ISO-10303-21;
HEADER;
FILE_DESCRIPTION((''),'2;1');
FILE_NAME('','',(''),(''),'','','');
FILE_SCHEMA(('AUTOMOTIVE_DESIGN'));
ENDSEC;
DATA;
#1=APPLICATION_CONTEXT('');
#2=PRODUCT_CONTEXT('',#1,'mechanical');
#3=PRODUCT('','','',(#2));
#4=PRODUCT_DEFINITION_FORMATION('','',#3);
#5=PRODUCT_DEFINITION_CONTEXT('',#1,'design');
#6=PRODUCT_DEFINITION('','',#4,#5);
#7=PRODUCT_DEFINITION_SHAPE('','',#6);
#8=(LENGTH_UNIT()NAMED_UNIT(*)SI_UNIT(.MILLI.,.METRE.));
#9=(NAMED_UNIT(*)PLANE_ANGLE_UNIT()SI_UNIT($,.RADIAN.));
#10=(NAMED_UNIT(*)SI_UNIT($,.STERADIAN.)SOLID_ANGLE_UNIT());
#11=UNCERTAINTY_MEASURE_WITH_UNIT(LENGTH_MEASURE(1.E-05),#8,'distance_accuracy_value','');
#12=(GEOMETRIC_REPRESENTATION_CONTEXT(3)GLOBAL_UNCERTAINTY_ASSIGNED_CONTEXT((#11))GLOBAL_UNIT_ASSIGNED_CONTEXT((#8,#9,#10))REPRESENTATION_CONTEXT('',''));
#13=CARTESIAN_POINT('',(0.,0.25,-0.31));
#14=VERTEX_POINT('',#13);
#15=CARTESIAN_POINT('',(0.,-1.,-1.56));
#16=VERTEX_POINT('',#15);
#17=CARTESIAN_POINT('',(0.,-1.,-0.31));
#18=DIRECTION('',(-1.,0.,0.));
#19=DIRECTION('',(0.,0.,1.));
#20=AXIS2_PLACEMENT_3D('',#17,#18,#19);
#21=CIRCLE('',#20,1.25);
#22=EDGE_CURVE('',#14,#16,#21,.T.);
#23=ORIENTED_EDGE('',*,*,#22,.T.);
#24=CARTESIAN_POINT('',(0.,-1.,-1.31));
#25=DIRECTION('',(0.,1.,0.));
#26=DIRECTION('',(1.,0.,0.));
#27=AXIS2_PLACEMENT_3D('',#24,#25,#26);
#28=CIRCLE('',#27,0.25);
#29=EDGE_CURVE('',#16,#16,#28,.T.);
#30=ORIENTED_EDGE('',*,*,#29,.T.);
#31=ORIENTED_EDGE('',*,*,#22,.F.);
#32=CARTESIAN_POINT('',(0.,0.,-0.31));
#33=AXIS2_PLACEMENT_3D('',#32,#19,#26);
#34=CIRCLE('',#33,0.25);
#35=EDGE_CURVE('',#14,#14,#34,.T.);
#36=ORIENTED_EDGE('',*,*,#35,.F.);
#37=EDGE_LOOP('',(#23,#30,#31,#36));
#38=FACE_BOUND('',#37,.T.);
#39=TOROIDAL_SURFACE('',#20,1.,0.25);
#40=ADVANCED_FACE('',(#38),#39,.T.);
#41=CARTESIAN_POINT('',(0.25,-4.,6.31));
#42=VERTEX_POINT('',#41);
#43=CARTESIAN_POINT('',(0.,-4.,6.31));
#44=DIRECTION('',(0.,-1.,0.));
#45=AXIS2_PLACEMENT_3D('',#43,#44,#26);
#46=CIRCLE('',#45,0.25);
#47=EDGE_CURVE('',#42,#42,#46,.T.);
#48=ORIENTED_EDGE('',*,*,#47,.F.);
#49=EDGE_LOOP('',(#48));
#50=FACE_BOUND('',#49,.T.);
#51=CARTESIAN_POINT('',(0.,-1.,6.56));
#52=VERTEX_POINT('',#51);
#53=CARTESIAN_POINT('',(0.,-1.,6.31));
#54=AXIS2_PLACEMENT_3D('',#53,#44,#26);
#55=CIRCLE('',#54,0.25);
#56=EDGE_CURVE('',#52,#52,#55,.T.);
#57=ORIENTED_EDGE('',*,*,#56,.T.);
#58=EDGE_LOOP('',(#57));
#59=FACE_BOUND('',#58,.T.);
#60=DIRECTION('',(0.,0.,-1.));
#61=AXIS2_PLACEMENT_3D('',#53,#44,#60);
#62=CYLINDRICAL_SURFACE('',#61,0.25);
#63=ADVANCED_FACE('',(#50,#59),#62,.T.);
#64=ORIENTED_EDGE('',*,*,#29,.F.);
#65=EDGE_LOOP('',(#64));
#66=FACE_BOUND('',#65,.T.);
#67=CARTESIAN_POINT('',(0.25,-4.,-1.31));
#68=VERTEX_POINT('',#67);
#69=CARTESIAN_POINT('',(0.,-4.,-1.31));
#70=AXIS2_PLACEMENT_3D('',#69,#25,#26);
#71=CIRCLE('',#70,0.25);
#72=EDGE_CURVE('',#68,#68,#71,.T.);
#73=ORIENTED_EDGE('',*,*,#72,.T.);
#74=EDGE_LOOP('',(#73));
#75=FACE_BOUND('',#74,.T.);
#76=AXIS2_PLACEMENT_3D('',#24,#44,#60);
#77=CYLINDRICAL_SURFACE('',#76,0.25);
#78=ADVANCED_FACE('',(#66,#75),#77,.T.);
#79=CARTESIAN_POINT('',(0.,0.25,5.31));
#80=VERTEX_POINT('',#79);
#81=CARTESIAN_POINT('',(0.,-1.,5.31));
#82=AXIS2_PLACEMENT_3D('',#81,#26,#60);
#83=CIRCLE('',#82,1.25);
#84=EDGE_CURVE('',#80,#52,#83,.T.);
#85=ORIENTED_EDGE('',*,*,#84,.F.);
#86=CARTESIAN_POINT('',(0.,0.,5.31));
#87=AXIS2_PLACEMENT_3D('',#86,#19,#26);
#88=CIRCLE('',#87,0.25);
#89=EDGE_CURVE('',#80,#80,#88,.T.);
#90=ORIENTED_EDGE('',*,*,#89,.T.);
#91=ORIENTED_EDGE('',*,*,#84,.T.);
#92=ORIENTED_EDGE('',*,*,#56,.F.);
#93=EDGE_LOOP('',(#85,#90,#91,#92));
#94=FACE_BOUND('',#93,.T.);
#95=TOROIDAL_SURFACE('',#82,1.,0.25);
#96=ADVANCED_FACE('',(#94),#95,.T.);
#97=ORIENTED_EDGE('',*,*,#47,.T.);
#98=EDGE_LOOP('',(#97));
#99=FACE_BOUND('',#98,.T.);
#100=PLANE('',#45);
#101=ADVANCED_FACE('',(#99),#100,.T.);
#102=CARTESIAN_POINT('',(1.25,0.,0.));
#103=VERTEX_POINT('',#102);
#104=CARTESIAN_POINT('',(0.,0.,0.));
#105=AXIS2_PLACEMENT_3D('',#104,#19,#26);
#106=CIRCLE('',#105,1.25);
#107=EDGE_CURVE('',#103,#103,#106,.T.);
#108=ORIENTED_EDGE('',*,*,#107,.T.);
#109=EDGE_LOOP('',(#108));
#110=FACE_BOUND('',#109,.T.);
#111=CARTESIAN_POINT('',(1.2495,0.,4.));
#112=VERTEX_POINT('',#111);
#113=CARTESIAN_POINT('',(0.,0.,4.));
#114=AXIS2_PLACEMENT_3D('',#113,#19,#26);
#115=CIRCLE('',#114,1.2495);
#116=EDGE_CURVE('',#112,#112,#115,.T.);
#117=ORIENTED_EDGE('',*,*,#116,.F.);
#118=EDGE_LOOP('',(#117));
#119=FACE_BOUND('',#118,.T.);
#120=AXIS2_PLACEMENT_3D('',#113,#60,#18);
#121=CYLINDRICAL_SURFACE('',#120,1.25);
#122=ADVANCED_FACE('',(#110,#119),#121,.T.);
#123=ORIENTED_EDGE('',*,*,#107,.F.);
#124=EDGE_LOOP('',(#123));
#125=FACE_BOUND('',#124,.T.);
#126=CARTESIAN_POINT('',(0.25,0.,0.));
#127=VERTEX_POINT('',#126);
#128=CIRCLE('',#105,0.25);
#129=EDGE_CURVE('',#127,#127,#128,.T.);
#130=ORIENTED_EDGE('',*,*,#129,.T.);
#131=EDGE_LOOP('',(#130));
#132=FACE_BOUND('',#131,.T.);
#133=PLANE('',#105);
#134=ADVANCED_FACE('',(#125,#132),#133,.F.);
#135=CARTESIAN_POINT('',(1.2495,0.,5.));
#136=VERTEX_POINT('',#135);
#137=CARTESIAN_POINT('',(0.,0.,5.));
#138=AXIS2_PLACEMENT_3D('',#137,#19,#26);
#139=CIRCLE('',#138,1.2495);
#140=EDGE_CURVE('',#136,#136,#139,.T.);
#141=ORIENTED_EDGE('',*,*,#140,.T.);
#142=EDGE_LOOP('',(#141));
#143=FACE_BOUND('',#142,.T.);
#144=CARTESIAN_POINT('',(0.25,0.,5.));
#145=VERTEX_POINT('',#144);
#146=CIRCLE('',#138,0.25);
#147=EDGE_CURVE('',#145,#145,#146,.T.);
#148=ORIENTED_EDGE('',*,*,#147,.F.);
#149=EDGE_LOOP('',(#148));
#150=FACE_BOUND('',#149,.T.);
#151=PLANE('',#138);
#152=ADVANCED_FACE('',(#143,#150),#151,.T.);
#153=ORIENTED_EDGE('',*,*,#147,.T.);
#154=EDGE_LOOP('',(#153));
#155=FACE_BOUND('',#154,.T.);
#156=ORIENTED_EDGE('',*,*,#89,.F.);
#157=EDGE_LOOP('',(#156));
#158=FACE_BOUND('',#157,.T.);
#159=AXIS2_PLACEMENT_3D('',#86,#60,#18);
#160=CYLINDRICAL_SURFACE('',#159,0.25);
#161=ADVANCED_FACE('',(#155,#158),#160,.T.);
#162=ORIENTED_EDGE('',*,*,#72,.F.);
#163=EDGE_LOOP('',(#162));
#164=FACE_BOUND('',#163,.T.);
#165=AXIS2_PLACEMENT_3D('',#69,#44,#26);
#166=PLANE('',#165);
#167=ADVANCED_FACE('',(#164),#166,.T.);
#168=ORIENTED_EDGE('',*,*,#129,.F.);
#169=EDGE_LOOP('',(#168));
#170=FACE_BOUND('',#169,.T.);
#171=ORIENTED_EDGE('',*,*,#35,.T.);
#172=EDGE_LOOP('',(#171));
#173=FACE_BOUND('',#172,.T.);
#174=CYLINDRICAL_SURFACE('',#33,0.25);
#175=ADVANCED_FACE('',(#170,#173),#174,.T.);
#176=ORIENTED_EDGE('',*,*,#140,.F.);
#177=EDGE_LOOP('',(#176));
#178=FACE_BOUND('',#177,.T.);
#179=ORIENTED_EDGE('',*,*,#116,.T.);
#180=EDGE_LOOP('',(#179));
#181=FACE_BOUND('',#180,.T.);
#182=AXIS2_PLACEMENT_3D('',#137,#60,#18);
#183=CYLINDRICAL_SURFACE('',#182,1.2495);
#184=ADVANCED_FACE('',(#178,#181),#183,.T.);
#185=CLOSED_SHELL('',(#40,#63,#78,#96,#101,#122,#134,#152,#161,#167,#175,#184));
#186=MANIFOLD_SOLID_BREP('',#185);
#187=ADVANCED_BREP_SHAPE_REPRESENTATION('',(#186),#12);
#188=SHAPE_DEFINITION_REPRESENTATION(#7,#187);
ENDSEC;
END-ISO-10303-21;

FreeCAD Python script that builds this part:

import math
import FreeCAD as App
import Part
import Sketcher

V = App.Vector

doc = App.newDocument("Part")
body = doc.addObject("PartDesign::Body", "Body")

# Sketch on XY plane
sketch1 = doc.addObject("Sketcher::SketchObject", "Sketch")
body.addObject(sketch1)
sketch1.AttachmentSupport = (doc.XY_Plane, [""])
sketch1.MapMode = "FlatFace"
sketch1.addGeometry(Part.Circle(V(0, 0, 0), V(0, 0, 1), 1.2), False)
sketch1.addConstraint([
    Sketcher.Constraint("Coincident", 0, 3, -1, 1),
    Sketcher.Constraint("Diameter", 0, 2.5),
])
pad1 = doc.addObject("PartDesign::Pad", "Pad")
body.addObject(pad1)
pad1.Profile = sketch1
pad1.Length = 4

# Sketch on XY plane
sketch2 = doc.addObject("Sketcher::SketchObject", "Sketch001")
body.addObject(sketch2)
sketch2.AttachmentSupport = (doc.XY_Plane, [""])
sketch2.MapMode = "FlatFace"
sketch2.AttachmentOffset = App.Placement(V(0, 0, 4), App.Rotation())
sketch2.addGeometry(Part.Circle(V(0, 0, 0), V(0, 0, 1), 1.2), False)
sketch2.addConstraint([
    Sketcher.Constraint("Coincident", 0, 3, -1, 1),
    Sketcher.Constraint("Diameter", 0, 2.499),
])
pad2 = doc.addObject("PartDesign::Pad", "Pad001")
body.addObject(pad2)
pad2.Profile = sketch2
pad2.Length = 1

# Sketch on XY plane
sketch3 = doc.addObject("Sketcher::SketchObject", "Sketch002")
body.addObject(sketch3)
sketch3.AttachmentSupport = (doc.XY_Plane, [""])
sketch3.MapMode = "FlatFace"
sketch3.AttachmentOffset = App.Placement(V(0, 0, 5), App.Rotation())
sketch3.addGeometry(Part.Circle(V(0, 0, 0), V(0, 0, 1), 0.25), False)
sketch3.addConstraint([
    Sketcher.Constraint("Coincident", 0, 3, -1, 1),
    Sketcher.Constraint("Diameter", 0, 0.5),
])

# Sketch on YZ plane
sketch4 = doc.addObject("Sketcher::SketchObject", "Sketch003")
body.addObject(sketch4)
sketch4.AttachmentSupport = (doc.YZ_Plane, [""])
sketch4.MapMode = "FlatFace"
sketch4.addGeometry([
    Part.LineSegment(V(0, 5, 0), V(0, 5.31, 0)),
    Part.ArcOfCircle(Part.Circle(V(-1, 5.31, 0), V(0, 0, 1), 1), math.radians(0), math.radians(90)),
    Part.LineSegment(V(-1, 6.31, 0), V(-4, 6.31, 0)),
], False)
sketch4.addConstraint([
    Sketcher.Constraint("Tangent", 0, 2, 1, 1),
    Sketcher.Constraint("Tangent", 1, 2, 2, 1),
    Sketcher.Constraint("Vertical", 0),
    Sketcher.Constraint("Horizontal", 2),
    Sketcher.Constraint("PointOnObject", 0, 1, -2),
    Sketcher.Constraint("Radius", 1, 1.0),
    Sketcher.Constraint("DistanceX", 2, 2, 2, 1, 3.0),
    Sketcher.Constraint("DistanceY", -1, 1, 0, 1, 5.0),
    Sketcher.Constraint("DistanceY", 0, 1, 0, 2, 0.31),
])
doc.recompute()

additivepipe = doc.addObject("PartDesign::AdditivePipe", "AdditivePipe")
body.addObject(additivepipe)
additivepipe.Profile = sketch3
additivepipe.Spine = (sketch4, ["Edge1", "Edge2", "Edge3"])
doc.recompute()

datumplane = doc.addObject("PartDesign::Plane", "DatumPlane")
body.addObject(datumplane)
datumplane.AttachmentSupport = (doc.XY_Plane, [""])
datumplane.MapMode = "FlatFace"
datumplane.AttachmentOffset = App.Placement(V(0, 0, 2.5), App.Rotation())
mirrored = doc.addObject("PartDesign::Mirrored", "Mirrored")
body.addObject(mirrored)
mirrored.Originals = [additivepipe]
mirrored.MirrorPlane = (datumplane, [""])
body.Tip = mirrored

doc.recompute()
